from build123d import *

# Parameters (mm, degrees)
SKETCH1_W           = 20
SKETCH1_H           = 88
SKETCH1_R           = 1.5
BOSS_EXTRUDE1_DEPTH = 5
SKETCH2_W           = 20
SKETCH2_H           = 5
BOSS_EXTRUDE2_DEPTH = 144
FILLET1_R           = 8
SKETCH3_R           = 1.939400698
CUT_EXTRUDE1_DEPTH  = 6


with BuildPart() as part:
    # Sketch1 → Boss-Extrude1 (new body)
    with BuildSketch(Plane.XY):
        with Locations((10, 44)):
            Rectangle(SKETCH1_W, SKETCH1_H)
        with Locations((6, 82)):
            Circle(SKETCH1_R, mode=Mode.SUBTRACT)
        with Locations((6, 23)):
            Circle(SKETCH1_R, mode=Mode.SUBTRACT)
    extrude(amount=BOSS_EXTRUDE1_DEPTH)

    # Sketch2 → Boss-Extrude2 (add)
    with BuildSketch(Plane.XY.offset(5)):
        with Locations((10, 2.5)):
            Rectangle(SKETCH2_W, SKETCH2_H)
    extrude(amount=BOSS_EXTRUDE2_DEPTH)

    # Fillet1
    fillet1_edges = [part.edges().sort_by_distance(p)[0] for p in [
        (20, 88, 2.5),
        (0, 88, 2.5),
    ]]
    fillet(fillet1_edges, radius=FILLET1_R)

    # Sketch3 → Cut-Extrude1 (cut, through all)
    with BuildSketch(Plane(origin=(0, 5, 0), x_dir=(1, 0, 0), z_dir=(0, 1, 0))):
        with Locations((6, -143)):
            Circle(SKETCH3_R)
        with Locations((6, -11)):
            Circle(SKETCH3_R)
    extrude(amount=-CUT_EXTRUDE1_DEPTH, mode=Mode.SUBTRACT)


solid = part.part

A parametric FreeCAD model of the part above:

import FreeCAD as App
import Part
import Sketcher
Q = App.Units.Quantity


def edges_at(feature, points):
    """Names of the edges that pass closest to the given points."""
    edges = feature.Shape.Edges
    near = lambda p: min(range(len(edges)), key=lambda i: edges[i].distToShape(Part.Vertex(*p))[0])
    return sorted({f"Edge{near(p) + 1}" for p in points})

doc = App.newDocument("Part")
params = doc.addObject("Spreadsheet::Sheet", "Params")
for row, (alias, value) in enumerate([
    ("sketch1_diameter", "3 mm"),
    ("sketch1_width", "20 mm"),
    ("sketch1_height", "88 mm"),
    ("pad1_length", "5 mm"),
    ("sketch2_width", "20 mm"),
    ("sketch2_height", "5 mm"),
    ("pad2_length", "144 mm"),
    ("fillet_radius", "8 mm"),
], start=1):
    params.set(f"A{row}", alias)
    params.set(f"B{row}", "=" + value)
    params.setAlias(f"B{row}", alias)

body = doc.addObject("PartDesign::Body", "Body")

# Sketch on XY plane
sketch1 = doc.addObject("Sketcher::SketchObject", "Sketch")
body.addObject(sketch1)
sketch1.AttachmentSupport = (doc.XY_Plane, [""])
sketch1.MapMode = "FlatFace"
sketch1.addGeometry(Part.LineSegment(App.Vector(0, 88, 0), App.Vector(0, 0, 0)), False)
sketch1.addGeometry(Part.LineSegment(App.Vector(0, 0, 0), App.Vector(20, 0, 0)), False)
sketch1.addGeometry(Part.LineSegment(App.Vector(20, 0, 0), App.Vector(20, 88, 0)), False)
sketch1.addGeometry(Part.LineSegment(App.Vector(20, 88, 0), App.Vector(0, 88, 0)), False)
sketch1.addGeometry(Part.Circle(App.Vector(6, 23, 0), App.Vector(0, 0, 1), 1.5), False)
sketch1.addGeometry(Part.Circle(App.Vector(6, 82, 0), App.Vector(0, 0, 1), 1.5), False)
sketch1.addConstraint(Sketcher.Constraint("Coincident", 0, 2, 1, 1))
sketch1.addConstraint(Sketcher.Constraint("Coincident", 1, 2, 2, 1))
sketch1.addConstraint(Sketcher.Constraint("Coincident", 2, 2, 3, 1))
sketch1.addConstraint(Sketcher.Constraint("Coincident", 3, 2, 0, 1))
sketch1.addConstraint(Sketcher.Constraint("Vertical", 0))
sketch1.addConstraint(Sketcher.Constraint("Horizontal", 1))
sketch1.addConstraint(Sketcher.Constraint("Vertical", 2))
sketch1.addConstraint(Sketcher.Constraint("Horizontal", 3))
sketch1.addConstraint(Sketcher.Constraint("Coincident", 0, 2, -1, 1))
sketch1.addConstraint(Sketcher.Constraint("Equal", 4, 5))
sketch1.addConstraint(Sketcher.Constraint("Vertical", 4, 3, 5, 3))
sketch1.addConstraint(Sketcher.Constraint("Diameter", 4, Q("3 mm")))
sketch1.addConstraint(Sketcher.Constraint("DistanceX", 1, 1, 1, 2, Q("20 mm")))
sketch1.addConstraint(Sketcher.Constraint("DistanceY", 0, 2, 0, 1, Q("88 mm")))
sketch1.addConstraint(Sketcher.Constraint("DistanceX", -1, 1, 4, 3, Q("6 mm")))
sketch1.addConstraint(Sketcher.Constraint("DistanceY", -1, 1, 4, 3, Q("23 mm")))
sketch1.addConstraint(Sketcher.Constraint("DistanceY", -1, 1, 5, 3, Q("82 mm")))
sketch1.setExpression("Constraints[11]", "Params.sketch1_diameter")
sketch1.setExpression("Constraints[12]", "Params.sketch1_width")
sketch1.setExpression("Constraints[13]", "Params.sketch1_height")
pad1 = doc.addObject("PartDesign::Pad", "Pad")
body.addObject(pad1)
pad1.Profile = sketch1
pad1.setExpression("Length", "Params.pad1_length")

# Sketch on XY plane
sketch2 = doc.addObject("Sketcher::SketchObject", "Sketch001")
body.addObject(sketch2)
sketch2.AttachmentSupport = (doc.XY_Plane, [""])
sketch2.MapMode = "FlatFace"
sketch2.AttachmentOffset = App.Placement(App.Vector(0, 0, 5), App.Rotation())
sketch2.addGeometry(Part.LineSegment(App.Vector(0, 5, 0), App.Vector(0, 0, 0)), False)
sketch2.addGeometry(Part.LineSegment(App.Vector(0, 0, 0), App.Vector(20, 0, 0)), False)
sketch2.addGeometry(Part.LineSegment(App.Vector(20, 0, 0), App.Vector(20, 5, 0)), False)
sketch2.addGeometry(Part.LineSegment(App.Vector(20, 5, 0), App.Vector(0, 5, 0)), False)
sketch2.addConstraint(Sketcher.Constraint("Coincident", 0, 2, 1, 1))
sketch2.addConstraint(Sketcher.Constraint("Coincident", 1, 2, 2, 1))
sketch2.addConstraint(Sketcher.Constraint("Coincident", 2, 2, 3, 1))
sketch2.addConstraint(Sketcher.Constraint("Coincident", 3, 2, 0, 1))
sketch2.addConstraint(Sketcher.Constraint("Vertical", 0))
sketch2.addConstraint(Sketcher.Constraint("Horizontal", 1))
sketch2.addConstraint(Sketcher.Constraint("Vertical", 2))
sketch2.addConstraint(Sketcher.Constraint("Horizontal", 3))
sketch2.addConstraint(Sketcher.Constraint("Coincident", 0, 2, -1, 1))
sketch2.addConstraint(Sketcher.Constraint("DistanceX", 1, 1, 1, 2, Q("20 mm")))
sketch2.addConstraint(Sketcher.Constraint("DistanceY", 0, 2, 0, 1, Q("5 mm")))
sketch2.setExpression("Constraints[9]", "Params.sketch2_width")
sketch2.setExpression("Constraints[10]", "Params.sketch2_height")
pad2 = doc.addObject("PartDesign::Pad", "Pad001")
body.addObject(pad2)
pad2.Profile = sketch2
pad2.setExpression("Length", "Params.pad2_length")
doc.recompute()

fillet = doc.addObject("PartDesign::Fillet", "Fillet")
body.addObject(fillet)
fillet.Base = (pad2, edges_at(pad2, [(20, 88, 2.5), (0, 88, 2.5)]))
fillet.setExpression("Radius", "Params.fillet_radius")

# Sketch on XZ plane
sketch3 = doc.addObject("Sketcher::SketchObject", "Sketch002")
body.addObject(sketch3)
sketch3.AttachmentSupport = (doc.XZ_Plane, [""])
sketch3.MapMode = "FlatFace"
sketch3.AttachmentOffset = App.Placement(App.Vector(0, 0, -5), App.Rotation())
sketch3.addGeometry(Part.Circle(App.Vector(6, 143, 0), App.Vector(0, 0, 1), 1.9), False)
sketch3.addGeometry(Part.Circle(App.Vector(6, 11, 0), App.Vector(0, 0, 1), 1.9), False)
sketch3.addConstraint(Sketcher.Constraint("Equal", 0, 1))
sketch3.addConstraint(Sketcher.Constraint("Vertical", 0, 3, 1, 3))
sketch3.addConstraint(Sketcher.Constraint("DistanceX", -1, 1, 0, 3, Q("6 mm")))
sketch3.addConstraint(Sketcher.Constraint("DistanceY", -1, 1, 0, 3, Q("143 mm")))
sketch3.addConstraint(Sketcher.Constraint("DistanceY", -1, 1, 1, 3, Q("11 mm")))
sketch3.addConstraint(Sketcher.Constraint("Diameter", 0, Q("3.878801 mm")))
pocket1 = doc.addObject("PartDesign::Pocket", "Pocket")
body.addObject(pocket1)
pocket1.Profile = sketch3
pocket1.Type = "ThroughAll"
pocket1.Reversed = True

doc.recompute()
